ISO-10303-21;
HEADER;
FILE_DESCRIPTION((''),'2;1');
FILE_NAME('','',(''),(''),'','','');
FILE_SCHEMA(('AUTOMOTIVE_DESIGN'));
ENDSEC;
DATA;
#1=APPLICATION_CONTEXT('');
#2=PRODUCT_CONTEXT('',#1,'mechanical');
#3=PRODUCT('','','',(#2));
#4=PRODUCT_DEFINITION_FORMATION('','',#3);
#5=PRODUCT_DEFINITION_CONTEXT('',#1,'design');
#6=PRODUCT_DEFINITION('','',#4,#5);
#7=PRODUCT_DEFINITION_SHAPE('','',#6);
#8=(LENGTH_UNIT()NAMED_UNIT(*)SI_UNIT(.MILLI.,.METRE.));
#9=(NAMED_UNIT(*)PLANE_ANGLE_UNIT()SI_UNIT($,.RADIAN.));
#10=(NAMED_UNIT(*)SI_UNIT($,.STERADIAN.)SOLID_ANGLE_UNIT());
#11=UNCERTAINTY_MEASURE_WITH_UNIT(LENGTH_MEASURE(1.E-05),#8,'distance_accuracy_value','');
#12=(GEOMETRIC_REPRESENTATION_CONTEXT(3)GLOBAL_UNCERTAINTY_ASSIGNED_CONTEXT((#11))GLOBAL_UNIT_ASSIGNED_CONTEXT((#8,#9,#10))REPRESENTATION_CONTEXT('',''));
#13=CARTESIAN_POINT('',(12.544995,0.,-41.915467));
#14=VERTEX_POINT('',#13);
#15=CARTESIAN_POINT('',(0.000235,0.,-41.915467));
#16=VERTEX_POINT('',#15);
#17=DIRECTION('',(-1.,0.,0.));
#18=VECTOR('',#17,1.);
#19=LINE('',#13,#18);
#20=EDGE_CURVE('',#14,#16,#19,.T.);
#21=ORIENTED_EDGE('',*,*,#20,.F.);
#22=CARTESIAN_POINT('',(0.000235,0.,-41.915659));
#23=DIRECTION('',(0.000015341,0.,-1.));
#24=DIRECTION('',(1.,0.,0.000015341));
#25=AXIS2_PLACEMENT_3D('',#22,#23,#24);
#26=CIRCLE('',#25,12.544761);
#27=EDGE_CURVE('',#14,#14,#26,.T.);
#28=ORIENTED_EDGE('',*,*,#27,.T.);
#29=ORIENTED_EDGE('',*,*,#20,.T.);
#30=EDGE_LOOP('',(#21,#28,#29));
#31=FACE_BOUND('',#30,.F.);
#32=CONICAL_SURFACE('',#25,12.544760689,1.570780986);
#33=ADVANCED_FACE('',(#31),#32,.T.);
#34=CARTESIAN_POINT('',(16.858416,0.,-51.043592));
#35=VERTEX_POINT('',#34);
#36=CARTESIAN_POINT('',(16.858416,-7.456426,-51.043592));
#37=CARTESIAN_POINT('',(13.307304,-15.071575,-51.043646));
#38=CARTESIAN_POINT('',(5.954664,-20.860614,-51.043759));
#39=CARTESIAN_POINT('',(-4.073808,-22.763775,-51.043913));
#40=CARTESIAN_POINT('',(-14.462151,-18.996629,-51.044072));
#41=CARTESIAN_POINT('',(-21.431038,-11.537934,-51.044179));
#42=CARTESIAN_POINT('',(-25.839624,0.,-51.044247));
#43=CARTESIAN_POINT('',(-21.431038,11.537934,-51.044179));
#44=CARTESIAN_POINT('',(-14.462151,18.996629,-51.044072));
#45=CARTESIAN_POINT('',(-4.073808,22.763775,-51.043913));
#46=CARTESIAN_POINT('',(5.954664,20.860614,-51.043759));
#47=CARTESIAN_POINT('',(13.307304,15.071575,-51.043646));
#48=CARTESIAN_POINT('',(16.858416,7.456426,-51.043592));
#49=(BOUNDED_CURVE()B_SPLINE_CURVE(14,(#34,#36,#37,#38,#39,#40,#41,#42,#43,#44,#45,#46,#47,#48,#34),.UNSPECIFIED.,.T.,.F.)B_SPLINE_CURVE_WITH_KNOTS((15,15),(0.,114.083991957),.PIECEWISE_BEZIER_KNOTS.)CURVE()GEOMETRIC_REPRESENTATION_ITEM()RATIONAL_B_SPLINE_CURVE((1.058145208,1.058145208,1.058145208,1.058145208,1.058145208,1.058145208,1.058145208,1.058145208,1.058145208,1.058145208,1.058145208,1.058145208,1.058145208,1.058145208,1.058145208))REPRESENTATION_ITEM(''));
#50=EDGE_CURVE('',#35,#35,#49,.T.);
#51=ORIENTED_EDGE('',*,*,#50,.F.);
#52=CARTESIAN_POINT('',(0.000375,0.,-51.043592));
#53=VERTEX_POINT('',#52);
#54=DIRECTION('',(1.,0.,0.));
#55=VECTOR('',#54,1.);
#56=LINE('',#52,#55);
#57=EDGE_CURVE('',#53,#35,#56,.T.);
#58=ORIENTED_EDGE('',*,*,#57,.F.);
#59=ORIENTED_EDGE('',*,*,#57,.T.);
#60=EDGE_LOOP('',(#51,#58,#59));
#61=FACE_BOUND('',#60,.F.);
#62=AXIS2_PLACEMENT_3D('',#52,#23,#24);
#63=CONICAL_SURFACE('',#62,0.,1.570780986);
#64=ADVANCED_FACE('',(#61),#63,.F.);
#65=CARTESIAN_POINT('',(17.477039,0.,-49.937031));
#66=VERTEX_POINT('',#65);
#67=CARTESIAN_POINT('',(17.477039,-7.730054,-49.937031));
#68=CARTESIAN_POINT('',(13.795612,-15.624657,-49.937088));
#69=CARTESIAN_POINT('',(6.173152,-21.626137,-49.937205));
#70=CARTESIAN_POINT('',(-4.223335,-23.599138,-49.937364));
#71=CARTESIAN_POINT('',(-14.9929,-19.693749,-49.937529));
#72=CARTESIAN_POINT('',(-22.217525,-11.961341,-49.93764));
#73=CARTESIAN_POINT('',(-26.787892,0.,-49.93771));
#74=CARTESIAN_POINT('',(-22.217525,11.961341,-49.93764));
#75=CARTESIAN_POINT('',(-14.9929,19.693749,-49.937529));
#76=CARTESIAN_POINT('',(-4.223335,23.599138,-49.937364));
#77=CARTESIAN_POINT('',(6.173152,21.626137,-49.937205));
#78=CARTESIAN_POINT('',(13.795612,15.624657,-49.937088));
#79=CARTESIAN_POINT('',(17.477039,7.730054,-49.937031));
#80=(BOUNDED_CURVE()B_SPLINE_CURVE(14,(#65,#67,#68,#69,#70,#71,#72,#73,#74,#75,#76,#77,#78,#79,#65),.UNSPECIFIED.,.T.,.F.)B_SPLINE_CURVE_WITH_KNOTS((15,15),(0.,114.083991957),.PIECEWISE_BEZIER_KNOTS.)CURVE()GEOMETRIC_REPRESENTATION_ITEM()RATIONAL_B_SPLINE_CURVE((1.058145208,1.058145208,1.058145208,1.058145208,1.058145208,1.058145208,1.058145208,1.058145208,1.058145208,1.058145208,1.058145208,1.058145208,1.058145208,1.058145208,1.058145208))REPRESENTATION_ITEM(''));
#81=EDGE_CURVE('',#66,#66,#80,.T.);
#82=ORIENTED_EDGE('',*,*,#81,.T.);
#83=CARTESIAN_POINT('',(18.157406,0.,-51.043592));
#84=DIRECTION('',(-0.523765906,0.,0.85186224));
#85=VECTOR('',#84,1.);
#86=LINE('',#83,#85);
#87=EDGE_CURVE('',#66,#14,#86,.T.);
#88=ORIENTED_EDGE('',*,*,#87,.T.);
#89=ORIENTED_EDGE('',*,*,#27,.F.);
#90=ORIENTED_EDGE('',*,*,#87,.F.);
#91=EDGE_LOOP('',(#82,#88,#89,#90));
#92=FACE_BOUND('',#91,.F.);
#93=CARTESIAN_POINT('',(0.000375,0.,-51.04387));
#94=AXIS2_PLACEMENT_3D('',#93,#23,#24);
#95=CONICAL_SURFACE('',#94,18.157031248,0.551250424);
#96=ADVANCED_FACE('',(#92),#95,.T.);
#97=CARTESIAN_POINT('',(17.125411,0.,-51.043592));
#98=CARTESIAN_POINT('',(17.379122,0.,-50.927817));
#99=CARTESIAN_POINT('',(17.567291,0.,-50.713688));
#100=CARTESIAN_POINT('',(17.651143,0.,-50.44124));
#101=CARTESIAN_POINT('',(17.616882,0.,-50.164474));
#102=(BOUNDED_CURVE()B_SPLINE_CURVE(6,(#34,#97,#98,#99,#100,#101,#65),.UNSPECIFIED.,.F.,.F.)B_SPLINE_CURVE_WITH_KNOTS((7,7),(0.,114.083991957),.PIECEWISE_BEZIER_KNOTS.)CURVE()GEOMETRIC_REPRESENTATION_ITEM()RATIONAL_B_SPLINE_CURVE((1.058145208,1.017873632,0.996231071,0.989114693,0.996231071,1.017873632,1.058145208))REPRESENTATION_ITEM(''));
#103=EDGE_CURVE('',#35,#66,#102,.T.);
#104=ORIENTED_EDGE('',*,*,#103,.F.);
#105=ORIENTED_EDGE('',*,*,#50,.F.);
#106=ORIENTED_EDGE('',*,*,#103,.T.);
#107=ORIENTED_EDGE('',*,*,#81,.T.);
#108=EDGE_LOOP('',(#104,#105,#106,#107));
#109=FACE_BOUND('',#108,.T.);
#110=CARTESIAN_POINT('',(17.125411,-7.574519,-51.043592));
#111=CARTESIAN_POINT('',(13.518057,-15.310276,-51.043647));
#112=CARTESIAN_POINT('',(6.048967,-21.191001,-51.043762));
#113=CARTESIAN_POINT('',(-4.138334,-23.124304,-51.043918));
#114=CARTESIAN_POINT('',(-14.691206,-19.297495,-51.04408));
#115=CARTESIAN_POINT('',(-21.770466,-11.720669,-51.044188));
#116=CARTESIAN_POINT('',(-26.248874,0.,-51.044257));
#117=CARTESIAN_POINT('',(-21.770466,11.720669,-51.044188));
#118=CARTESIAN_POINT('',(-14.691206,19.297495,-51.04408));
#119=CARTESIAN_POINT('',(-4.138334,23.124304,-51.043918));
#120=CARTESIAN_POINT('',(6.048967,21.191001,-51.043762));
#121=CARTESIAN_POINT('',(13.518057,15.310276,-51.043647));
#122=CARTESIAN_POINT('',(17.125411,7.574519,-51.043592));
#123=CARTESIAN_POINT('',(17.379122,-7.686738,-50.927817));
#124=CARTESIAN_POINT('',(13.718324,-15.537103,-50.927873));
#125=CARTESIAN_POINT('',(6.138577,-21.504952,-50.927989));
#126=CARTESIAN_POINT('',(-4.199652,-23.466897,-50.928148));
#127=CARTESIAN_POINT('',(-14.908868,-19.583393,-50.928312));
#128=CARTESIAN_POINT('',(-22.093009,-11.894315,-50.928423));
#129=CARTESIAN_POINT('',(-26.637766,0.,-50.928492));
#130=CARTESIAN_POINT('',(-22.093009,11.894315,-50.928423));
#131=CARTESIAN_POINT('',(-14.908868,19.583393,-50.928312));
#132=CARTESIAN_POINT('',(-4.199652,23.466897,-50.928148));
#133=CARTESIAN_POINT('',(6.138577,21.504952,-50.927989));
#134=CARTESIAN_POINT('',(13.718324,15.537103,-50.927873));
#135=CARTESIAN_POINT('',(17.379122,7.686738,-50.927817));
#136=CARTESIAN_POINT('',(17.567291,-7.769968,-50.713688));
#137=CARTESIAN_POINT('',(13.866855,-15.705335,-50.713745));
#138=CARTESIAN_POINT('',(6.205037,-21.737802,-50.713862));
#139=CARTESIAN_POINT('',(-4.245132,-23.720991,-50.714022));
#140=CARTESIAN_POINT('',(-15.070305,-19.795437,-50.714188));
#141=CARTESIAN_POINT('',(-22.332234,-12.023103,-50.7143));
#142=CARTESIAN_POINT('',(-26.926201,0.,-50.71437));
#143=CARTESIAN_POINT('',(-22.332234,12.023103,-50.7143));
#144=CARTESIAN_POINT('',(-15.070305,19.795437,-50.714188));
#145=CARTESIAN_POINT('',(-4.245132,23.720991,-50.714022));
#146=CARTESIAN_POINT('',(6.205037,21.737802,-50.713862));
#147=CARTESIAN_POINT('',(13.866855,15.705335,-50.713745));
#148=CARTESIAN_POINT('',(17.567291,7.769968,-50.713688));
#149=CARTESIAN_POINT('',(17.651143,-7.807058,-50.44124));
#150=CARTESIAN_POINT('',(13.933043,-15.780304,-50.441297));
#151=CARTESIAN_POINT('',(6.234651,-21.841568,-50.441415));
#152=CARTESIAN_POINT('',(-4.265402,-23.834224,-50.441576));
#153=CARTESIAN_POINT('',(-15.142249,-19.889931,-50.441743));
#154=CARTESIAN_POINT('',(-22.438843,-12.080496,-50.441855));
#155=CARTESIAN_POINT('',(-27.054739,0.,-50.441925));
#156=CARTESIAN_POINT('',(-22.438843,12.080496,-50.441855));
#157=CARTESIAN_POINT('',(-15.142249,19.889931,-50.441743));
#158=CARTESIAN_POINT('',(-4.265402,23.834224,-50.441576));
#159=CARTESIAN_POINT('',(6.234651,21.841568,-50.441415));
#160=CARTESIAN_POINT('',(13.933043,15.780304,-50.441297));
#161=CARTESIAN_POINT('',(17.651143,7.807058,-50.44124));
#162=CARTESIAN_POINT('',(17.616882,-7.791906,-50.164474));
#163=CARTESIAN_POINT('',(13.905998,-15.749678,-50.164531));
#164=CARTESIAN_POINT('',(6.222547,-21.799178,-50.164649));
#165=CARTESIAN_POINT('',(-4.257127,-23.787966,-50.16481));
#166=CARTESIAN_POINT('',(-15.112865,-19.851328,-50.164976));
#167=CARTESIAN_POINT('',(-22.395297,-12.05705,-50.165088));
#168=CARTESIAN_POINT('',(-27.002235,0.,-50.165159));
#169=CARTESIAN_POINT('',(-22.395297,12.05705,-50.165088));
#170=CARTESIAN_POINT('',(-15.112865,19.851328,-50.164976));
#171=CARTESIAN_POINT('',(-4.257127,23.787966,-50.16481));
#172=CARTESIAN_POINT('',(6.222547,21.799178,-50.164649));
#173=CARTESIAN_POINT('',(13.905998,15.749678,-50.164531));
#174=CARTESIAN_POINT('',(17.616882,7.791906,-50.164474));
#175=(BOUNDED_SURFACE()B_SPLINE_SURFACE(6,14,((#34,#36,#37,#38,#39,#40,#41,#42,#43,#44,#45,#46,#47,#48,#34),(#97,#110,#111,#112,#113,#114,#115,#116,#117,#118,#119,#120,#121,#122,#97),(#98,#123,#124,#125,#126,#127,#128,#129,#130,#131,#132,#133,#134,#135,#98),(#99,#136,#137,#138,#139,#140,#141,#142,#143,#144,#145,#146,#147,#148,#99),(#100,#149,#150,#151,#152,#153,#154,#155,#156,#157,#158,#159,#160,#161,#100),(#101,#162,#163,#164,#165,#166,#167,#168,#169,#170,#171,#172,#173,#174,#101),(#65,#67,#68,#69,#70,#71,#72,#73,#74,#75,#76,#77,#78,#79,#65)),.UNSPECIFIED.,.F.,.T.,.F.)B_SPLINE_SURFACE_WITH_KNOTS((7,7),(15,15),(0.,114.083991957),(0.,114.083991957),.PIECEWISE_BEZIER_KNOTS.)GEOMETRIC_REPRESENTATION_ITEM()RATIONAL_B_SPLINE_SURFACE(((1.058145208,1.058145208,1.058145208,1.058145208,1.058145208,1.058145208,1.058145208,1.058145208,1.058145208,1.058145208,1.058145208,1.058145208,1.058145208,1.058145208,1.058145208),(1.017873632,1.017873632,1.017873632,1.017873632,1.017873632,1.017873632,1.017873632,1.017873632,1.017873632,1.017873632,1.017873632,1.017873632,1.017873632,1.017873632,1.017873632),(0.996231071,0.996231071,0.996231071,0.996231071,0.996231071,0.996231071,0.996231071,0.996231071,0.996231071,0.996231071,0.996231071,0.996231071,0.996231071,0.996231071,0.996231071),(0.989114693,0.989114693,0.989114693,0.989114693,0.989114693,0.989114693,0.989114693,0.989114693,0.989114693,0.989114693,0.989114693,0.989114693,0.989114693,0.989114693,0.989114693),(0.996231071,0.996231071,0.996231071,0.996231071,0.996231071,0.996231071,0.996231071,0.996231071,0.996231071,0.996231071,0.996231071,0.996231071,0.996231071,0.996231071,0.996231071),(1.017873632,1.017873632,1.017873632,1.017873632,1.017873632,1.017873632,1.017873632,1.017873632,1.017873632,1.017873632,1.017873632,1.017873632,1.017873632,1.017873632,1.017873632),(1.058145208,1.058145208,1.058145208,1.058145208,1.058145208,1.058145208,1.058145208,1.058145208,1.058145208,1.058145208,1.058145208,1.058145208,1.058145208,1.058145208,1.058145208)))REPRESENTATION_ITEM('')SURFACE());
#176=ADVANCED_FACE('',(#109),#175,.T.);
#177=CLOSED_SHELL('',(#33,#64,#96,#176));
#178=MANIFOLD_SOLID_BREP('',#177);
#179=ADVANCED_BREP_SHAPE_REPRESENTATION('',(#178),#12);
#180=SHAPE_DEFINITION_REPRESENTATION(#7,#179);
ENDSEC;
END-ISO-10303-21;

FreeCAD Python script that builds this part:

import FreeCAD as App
import Part
import Sketcher
from FreeCAD import Vector
Q = App.Units.Quantity


def edges_at(feature, points):
    """Names of the edges that pass closest to the given points."""
    edges = feature.Shape.Edges
    near = lambda p: min(range(len(edges)), key=lambda i: edges[i].distToShape(Part.Vertex(*p))[0])
    return sorted({f"Edge{near(p) + 1}" for p in points})


def add_polygon(sketch, points):
    """Adds a closed chain of lines whose ends are joined by coincident constraints."""
    first, n = sketch.GeometryCount, len(points)
    for a, b in zip(points, points[1:] + points[:1]):
        sketch.addGeometry(Part.LineSegment(App.Vector(*a, 0), App.Vector(*b, 0)), False)
    for i in range(n):
        sketch.addConstraint(Sketcher.Constraint("Coincident", first + i, 2, first + (i + 1) % n, 1))

doc = App.newDocument("Part")
body = doc.addObject("PartDesign::Body", "Body")

# Sketch on XZ plane
sketch1 = doc.addObject("Sketcher::SketchObject", "Sketch")
body.addObject(sketch1)
sketch1.AttachmentSupport = (doc.XZ_Plane, [""])
sketch1.MapMode = "FlatFace"
add_polygon(sketch1, [(0, -42), (0, -51), (18, -51), (13, -42)])  # lines 0-3
sketch1.addGeometry(Part.LineSegment(Vector(0, -42, 0), Vector(0, -51, 0)), True)  # axis
sketch1.addConstraint(Sketcher.Constraint("Horizontal", 1))
sketch1.addConstraint(Sketcher.Constraint("Horizontal", 3))
sketch1.addConstraint(Sketcher.Constraint("Coincident", 4, 1, 3, 2))
sketch1.addConstraint(Sketcher.Constraint("Parallel", 0, 4))
sketch1.addConstraint(Sketcher.Constraint("Distance", 0, Q("0.359375 in")))
sketch1.addConstraint(Sketcher.Constraint("DistanceX", 1, 1, 1, 2, 18.157031))
sketch1.addConstraint(Sketcher.Constraint("DistanceX", 3, 2, 3, 1, 12.544761))
sketch1.addConstraint(Sketcher.Constraint("DistanceY", 0, 2, -1, 1, 51.043592))
sketch1.addConstraint(Sketcher.Constraint("DistanceY", 4, 2, -1, 1, 51.04387))
sketch1.addConstraint(Sketcher.Constraint("DistanceX", 2, 2, 1, 2, 5.612411))
sketch1.addConstraint(Sketcher.Constraint("DistanceX", -1, 1, 0, 2, 0.000375))
revolution = doc.addObject("PartDesign::Revolution", "Revolution")
body.addObject(revolution)
revolution.Profile = sketch1
revolution.ReferenceAxis = (sketch1, ["Axis0"])
revolution.Angle = 360
doc.recompute()

fillet = doc.addObject("PartDesign::Fillet", "Fillet")
body.addObject(fillet)
fillet.Base = (revolution, edges_at(revolution, [(-18.157, 0, -51.044)]))
fillet.Radius = 0.726201

doc.recompute()
